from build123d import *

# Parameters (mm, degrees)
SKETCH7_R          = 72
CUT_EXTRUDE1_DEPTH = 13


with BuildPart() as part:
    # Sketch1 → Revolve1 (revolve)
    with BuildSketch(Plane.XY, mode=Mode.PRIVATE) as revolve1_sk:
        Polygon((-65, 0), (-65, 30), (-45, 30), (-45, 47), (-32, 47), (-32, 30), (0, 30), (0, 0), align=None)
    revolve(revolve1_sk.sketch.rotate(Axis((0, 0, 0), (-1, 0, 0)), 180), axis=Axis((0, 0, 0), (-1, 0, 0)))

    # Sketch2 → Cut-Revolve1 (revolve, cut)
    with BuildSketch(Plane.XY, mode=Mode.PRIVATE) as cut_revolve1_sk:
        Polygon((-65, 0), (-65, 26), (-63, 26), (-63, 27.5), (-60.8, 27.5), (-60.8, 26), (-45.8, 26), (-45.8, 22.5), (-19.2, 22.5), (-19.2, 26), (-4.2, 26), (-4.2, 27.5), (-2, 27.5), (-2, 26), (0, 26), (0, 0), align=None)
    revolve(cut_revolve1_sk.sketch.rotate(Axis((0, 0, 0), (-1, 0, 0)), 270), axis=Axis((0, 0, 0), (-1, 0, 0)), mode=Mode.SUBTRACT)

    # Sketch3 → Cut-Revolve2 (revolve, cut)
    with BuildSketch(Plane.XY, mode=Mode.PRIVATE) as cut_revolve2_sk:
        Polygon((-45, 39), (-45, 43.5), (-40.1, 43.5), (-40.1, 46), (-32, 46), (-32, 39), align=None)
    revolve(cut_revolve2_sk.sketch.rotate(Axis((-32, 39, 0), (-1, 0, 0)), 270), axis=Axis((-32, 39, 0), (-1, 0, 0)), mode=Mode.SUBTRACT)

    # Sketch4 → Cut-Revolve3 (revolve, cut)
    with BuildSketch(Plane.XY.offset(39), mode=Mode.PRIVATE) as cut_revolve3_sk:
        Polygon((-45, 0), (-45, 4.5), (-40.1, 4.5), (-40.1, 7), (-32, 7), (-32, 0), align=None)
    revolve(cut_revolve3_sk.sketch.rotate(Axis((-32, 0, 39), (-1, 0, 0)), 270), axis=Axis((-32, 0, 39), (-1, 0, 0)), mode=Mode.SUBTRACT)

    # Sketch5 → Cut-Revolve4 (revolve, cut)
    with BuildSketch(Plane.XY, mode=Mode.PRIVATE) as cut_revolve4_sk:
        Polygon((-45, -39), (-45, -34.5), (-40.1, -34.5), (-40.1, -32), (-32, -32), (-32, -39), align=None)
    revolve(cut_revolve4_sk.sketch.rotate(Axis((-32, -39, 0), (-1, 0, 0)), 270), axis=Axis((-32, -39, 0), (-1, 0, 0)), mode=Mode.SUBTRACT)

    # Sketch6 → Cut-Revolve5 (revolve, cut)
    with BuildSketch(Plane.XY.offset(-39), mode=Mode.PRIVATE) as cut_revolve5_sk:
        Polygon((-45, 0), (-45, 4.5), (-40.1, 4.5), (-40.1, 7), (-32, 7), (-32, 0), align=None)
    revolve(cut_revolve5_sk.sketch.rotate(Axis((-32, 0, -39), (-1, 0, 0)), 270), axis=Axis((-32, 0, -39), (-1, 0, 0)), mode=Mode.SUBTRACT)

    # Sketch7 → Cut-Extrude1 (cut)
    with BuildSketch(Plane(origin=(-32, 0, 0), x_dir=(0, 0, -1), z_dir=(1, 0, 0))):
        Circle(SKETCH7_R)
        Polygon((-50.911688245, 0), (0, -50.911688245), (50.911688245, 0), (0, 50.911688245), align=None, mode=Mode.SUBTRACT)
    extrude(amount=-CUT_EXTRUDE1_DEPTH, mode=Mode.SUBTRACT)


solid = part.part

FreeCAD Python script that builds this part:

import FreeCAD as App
import Part
import Sketcher

V = App.Vector
Q = App.Units.Quantity


def add_polygon(sketch, points):
    """Adds a closed chain of lines whose ends are joined by coincident constraints."""
    first, n = sketch.GeometryCount, len(points)
    for a, b in zip(points, points[1:] + points[:1]):
        sketch.addGeometry(Part.LineSegment(App.Vector(*a, 0), App.Vector(*b, 0)), False)
    for i in range(n):
        sketch.addConstraint(Sketcher.Constraint("Coincident", first + i, 2, first + (i + 1) % n, 1))

doc = App.newDocument("Part")
body = doc.addObject("PartDesign::Body", "Body")

# Sketch on XY plane
sketch1 = body.newObject("Sketcher::SketchObject", "Sketch")
sketch1.AttachmentSupport = (doc.getObject("XY_Plane"), [""])
sketch1.MapMode = "FlatFace"
add_polygon(sketch1, [(-65, 30), (-65, 0), (0, 0), (0, 30), (-32, 30), (-32, 47), (-45, 47), (-45, 30)])  # lines 0-7
sketch1.addConstraint(Sketcher.Constraint("Vertical", 0))
sketch1.addConstraint(Sketcher.Constraint("Horizontal", 1))
sketch1.addConstraint(Sketcher.Constraint("Vertical", 2))
sketch1.addConstraint(Sketcher.Constraint("Horizontal", 3))
sketch1.addConstraint(Sketcher.Constraint("Vertical", 4))
sketch1.addConstraint(Sketcher.Constraint("Horizontal", 5))
sketch1.addConstraint(Sketcher.Constraint("Vertical", 6))
sketch1.addConstraint(Sketcher.Constraint("Horizontal", 7))
sketch1.addConstraint(Sketcher.Constraint("Coincident", 1, 2, -1, 1))
sketch1.addConstraint(Sketcher.Constraint("Horizontal", 3, 2, 6, 2))
sketch1.addConstraint(Sketcher.Constraint("DistanceX", 1, 1, 1, 2, Q("65 mm")))
sketch1.addConstraint(Sketcher.Constraint("DistanceX", 3, 2, 3, 1, Q("32 mm")))
sketch1.addConstraint(Sketcher.Constraint("DistanceX", 5, 2, 5, 1, Q("13 mm")))
sketch1.addConstraint(Sketcher.Constraint("DistanceY", 0, 2, 0, 1, Q("30 mm")))
sketch1.addConstraint(Sketcher.Constraint("DistanceY", 4, 1, 4, 2, Q("17 mm")))
revolution = body.newObject("PartDesign::Revolution", "Revolution")
revolution.Profile = sketch1
revolution.ReferenceAxis = (sketch1, ["H_Axis"])
revolution.Angle = 360

# Sketch on XY plane
sketch2 = body.newObject("Sketcher::SketchObject", "Sketch001")
sketch2.AttachmentSupport = (doc.getObject("XY_Plane"), [""])
sketch2.MapMode = "FlatFace"
add_polygon(sketch2, [(-65, 26), (-65, 0), (0, 0), (0, 26), (-2, 26), (-2, 27.5), (-4.2, 27.5), (-4.2, 26), (-19.2, 26), (-19.2, 22.5), (-45.8, 22.5), (-45.8, 26), (-60.8, 26), (-60.8, 27.5), (-63, 27.5), (-63, 26)])  # lines 0-15
sketch2.addConstraint(Sketcher.Constraint("Vertical", 0))
sketch2.addConstraint(Sketcher.Constraint("Horizontal", 1))
sketch2.addConstraint(Sketcher.Constraint("Vertical", 2))
sketch2.addConstraint(Sketcher.Constraint("Horizontal", 3))
sketch2.addConstraint(Sketcher.Constraint("Vertical", 4))
sketch2.addConstraint(Sketcher.Constraint("Horizontal", 5))
sketch2.addConstraint(Sketcher.Constraint("Vertical", 6))
sketch2.addConstraint(Sketcher.Constraint("Horizontal", 7))
sketch2.addConstraint(Sketcher.Constraint("Vertical", 8))
sketch2.addConstraint(Sketcher.Constraint("Horizontal", 9))
sketch2.addConstraint(Sketcher.Constraint("Vertical", 10))
sketch2.addConstraint(Sketcher.Constraint("Horizontal", 11))
sketch2.addConstraint(Sketcher.Constraint("Vertical", 12))
sketch2.addConstraint(Sketcher.Constraint("Horizontal", 13))
sketch2.addConstraint(Sketcher.Constraint("Vertical", 14))
sketch2.addConstraint(Sketcher.Constraint("Horizontal", 15))
sketch2.addConstraint(Sketcher.Constraint("Coincident", 1, 2, -1, 1))
sketch2.addConstraint(Sketcher.Constraint("Horizontal", 3, 2, 6, 2))
sketch2.addConstraint(Sketcher.Constraint("Horizontal", 7, 2, 10, 2))
sketch2.addConstraint(Sketcher.Constraint("Horizontal", 5, 2, 12, 2))
sketch2.addConstraint(Sketcher.Constraint("Horizontal", 11, 2, 14, 2))
sketch2.addConstraint(Sketcher.Constraint("Equal", 7, 11))
sketch2.addConstraint(Sketcher.Constraint("Equal", 5, 13))
sketch2.addConstraint(Sketcher.Constraint("Equal", 3, 15))
sketch2.addConstraint(Sketcher.Constraint("DistanceX", 1, 1, 1, 2, Q("65 mm")))
sketch2.addConstraint(Sketcher.Constraint("DistanceX", 3, 2, 3, 1, Q("2 mm")))
sketch2.addConstraint(Sketcher.Constraint("DistanceX", 7, 2, 7, 1, Q("15 mm")))
sketch2.addConstraint(Sketcher.Constraint("DistanceY", 0, 2, 0, 1, Q("26 mm")))
sketch2.addConstraint(Sketcher.Constraint("DistanceX", 5, 2, 5, 1, Q("2.2 mm")))
sketch2.addConstraint(Sketcher.Constraint("DistanceY", 4, 1, 4, 2, Q("1.5 mm")))
sketch2.addConstraint(Sketcher.Constraint("DistanceY", 8, 2, 8, 1, Q("3.5 mm")))
groove = body.newObject("PartDesign::Groove", "Groove")
groove.Profile = sketch2
groove.ReferenceAxis = (sketch2, ["H_Axis"])
groove.Angle = 360

# Sketch on XY plane
sketch3 = body.newObject("Sketcher::SketchObject", "Sketch002")
sketch3.AttachmentSupport = (doc.getObject("XY_Plane"), [""])
sketch3.MapMode = "FlatFace"
add_polygon(sketch3, [(-45, 43.5), (-45, 39), (-32, 39), (-32, 46), (-40.1, 46), (-40.1, 43.5)])  # lines 0-5
sketch3.addGeometry(Part.LineSegment(V(-32, 39, 0), V(-45, 39, 0)), True)  # axis
sketch3.addConstraint(Sketcher.Constraint("Vertical", 0))
sketch3.addConstraint(Sketcher.Constraint("Horizontal", 1))
sketch3.addConstraint(Sketcher.Constraint("Vertical", 2))
sketch3.addConstraint(Sketcher.Constraint("Horizontal", 3))
sketch3.addConstraint(Sketcher.Constraint("Vertical", 4))
sketch3.addConstraint(Sketcher.Constraint("Horizontal", 5))
sketch3.addConstraint(Sketcher.Constraint("Horizontal", 6))
sketch3.addConstraint(Sketcher.Constraint("Coincident", 6, 1, 1, 2))
sketch3.addConstraint(Sketcher.Constraint("Vertical", 5, 2, 6, 2))
sketch3.addConstraint(Sketcher.Constraint("DistanceX", 1, 1, 1, 2, Q("13 mm")))
sketch3.addConstraint(Sketcher.Constraint("DistanceY", 2, 1, 2, 2, Q("7 mm")))
sketch3.addConstraint(Sketcher.Constraint("DistanceX", 3, 2, 3, 1, Q("8.1 mm")))
sketch3.addConstraint(Sketcher.Constraint("DistanceY", 0, 2, 0, 1, Q("4.5 mm")))
sketch3.addConstraint(Sketcher.Constraint("DistanceX", 0, 2, -1, 1, Q("45 mm")))
sketch3.addConstraint(Sketcher.Constraint("DistanceY", -1, 1, 0, 2, Q("39 mm")))
groove2 = body.newObject("PartDesign::Groove", "Groove001")
groove2.Profile = sketch3
groove2.ReferenceAxis = (sketch3, ["Axis0"])
groove2.Angle = 360

# Sketch on XY plane
sketch4 = body.newObject("Sketcher::SketchObject", "Sketch003")
sketch4.AttachmentSupport = (doc.getObject("XY_Plane"), [""])
sketch4.MapMode = "FlatFace"
sketch4.AttachmentOffset = App.Placement(V(0, 0, 39), App.Rotation())
add_polygon(sketch4, [(-45, 4.5), (-45, 0), (-32, 0), (-32, 7), (-40.1, 7), (-40.1, 4.5)])  # lines 0-5
sketch4.addConstraint(Sketcher.Constraint("Vertical", 0))
sketch4.addConstraint(Sketcher.Constraint("Horizontal", 1))
sketch4.addConstraint(Sketcher.Constraint("Vertical", 2))
sketch4.addConstraint(Sketcher.Constraint("Horizontal", 3))
sketch4.addConstraint(Sketcher.Constraint("Vertical", 4))
sketch4.addConstraint(Sketcher.Constraint("Horizontal", 5))
sketch4.addConstraint(Sketcher.Constraint("PointOnObject", 0, 2, -1))
sketch4.addConstraint(Sketcher.Constraint("DistanceX", 1, 1, 1, 2, Q("13 mm")))
sketch4.addConstraint(Sketcher.Constraint("DistanceY", 2, 1, 2, 2, Q("7 mm")))
sketch4.addConstraint(Sketcher.Constraint("DistanceX", 3, 2, 3, 1, Q("8.1 mm")))
sketch4.addConstraint(Sketcher.Constraint("DistanceY", 0, 2, 0, 1, Q("4.5 mm")))
sketch4.addConstraint(Sketcher.Constraint("DistanceX", 0, 2, -1, 1, Q("45 mm")))
groove3 = body.newObject("PartDesign::Groove", "Groove002")
groove3.Profile = sketch4
groove3.ReferenceAxis = (sketch4, ["H_Axis"])
groove3.Angle = 360

# Sketch on XY plane
sketch5 = body.newObject("Sketcher::SketchObject", "Sketch004")
sketch5.AttachmentSupport = (doc.getObject("XY_Plane"), [""])
sketch5.MapMode = "FlatFace"
add_polygon(sketch5, [(-45, -34.5), (-45, -39), (-32, -39), (-32, -32), (-40.1, -32), (-40.1, -34.5)])  # lines 0-5
sketch5.addGeometry(Part.LineSegment(V(-32, -39, 0), V(-45, -39, 0)), True)  # axis
sketch5.addConstraint(Sketcher.Constraint("Vertical", 0))
sketch5.addConstraint(Sketcher.Constraint("Horizontal", 1))
sketch5.addConstraint(Sketcher.Constraint("Vertical", 2))
sketch5.addConstraint(Sketcher.Constraint("Horizontal", 3))
sketch5.addConstraint(Sketcher.Constraint("Vertical", 4))
sketch5.addConstraint(Sketcher.Constraint("Horizontal", 5))
sketch5.addConstraint(Sketcher.Constraint("Horizontal", 6))
sketch5.addConstraint(Sketcher.Constraint("Coincident", 6, 1, 1, 2))
sketch5.addConstraint(Sketcher.Constraint("Vertical", 5, 2, 6, 2))
sketch5.addConstraint(Sketcher.Constraint("DistanceX", 1, 1, 1, 2, Q("13 mm")))
sketch5.addConstraint(Sketcher.Constraint("DistanceY", 2, 1, 2, 2, Q("7 mm")))
sketch5.addConstraint(Sketcher.Constraint("DistanceX", 3, 2, 3, 1, Q("8.1 mm")))
sketch5.addConstraint(Sketcher.Constraint("DistanceY", 0, 2, 0, 1, Q("4.5 mm")))
sketch5.addConstraint(Sketcher.Constraint("DistanceX", 0, 2, -1, 1, Q("45 mm")))
sketch5.addConstraint(Sketcher.Constraint("DistanceY", 0, 2, -1, 1, Q("39 mm")))
groove4 = body.newObject("PartDesign::Groove", "Groove003")
groove4.Profile = sketch5
groove4.ReferenceAxis = (sketch5, ["Axis0"])
groove4.Angle = 360

# Sketch on XY plane
sketch6 = body.newObject("Sketcher::SketchObject", "Sketch005")
sketch6.AttachmentSupport = (doc.getObject("XY_Plane"), [""])
sketch6.MapMode = "FlatFace"
sketch6.AttachmentOffset = App.Placement(V(0, 0, -39), App.Rotation())
add_polygon(sketch6, [(-45, 4.5), (-45, 0), (-32, 0), (-32, 7), (-40.1, 7), (-40.1, 4.5)])  # lines 0-5
sketch6.addConstraint(Sketcher.Constraint("Vertical", 0))
sketch6.addConstraint(Sketcher.Constraint("Horizontal", 1))
sketch6.addConstraint(Sketcher.Constraint("Vertical", 2))
sketch6.addConstraint(Sketcher.Constraint("Horizontal", 3))
sketch6.addConstraint(Sketcher.Constraint("Vertical", 4))
sketch6.addConstraint(Sketcher.Constraint("Horizontal", 5))
sketch6.addConstraint(Sketcher.Constraint("PointOnObject", 0, 2, -1))
sketch6.addConstraint(Sketcher.Constraint("DistanceX", 1, 1, 1, 2, Q("13 mm")))
sketch6.addConstraint(Sketcher.Constraint("DistanceY", 2, 1, 2, 2, Q("7 mm")))
sketch6.addConstraint(Sketcher.Constraint("DistanceX", 3, 2, 3, 1, Q("8.1 mm")))
sketch6.addConstraint(Sketcher.Constraint("DistanceY", 0, 2, 0, 1, Q("4.5 mm")))
sketch6.addConstraint(Sketcher.Constraint("DistanceX", 0, 2, -1, 1, Q("45 mm")))
groove5 = body.newObject("PartDesign::Groove", "Groove004")
groove5.Profile = sketch6
groove5.ReferenceAxis = (sketch6, ["H_Axis"])
groove5.Angle = 360

# Sketch on YZ plane
sketch7 = body.newObject("Sketcher::SketchObject", "Sketch006")
sketch7.AttachmentSupport = (doc.getObject("YZ_Plane"), [""])
sketch7.MapMode = "FlatFace"
sketch7.AttachmentOffset = App.Placement(V(0, 0, -32), App.Rotation())
sketch7.addGeometry(Part.Circle(V(0, 0, 0), V(0, 0, 1), 72), False)  # 0
add_polygon(sketch7, [(-51, 0), (0, 51), (51, 0), (0, -51)])  # lines 1-4
sketch7.addConstraint(Sketcher.Constraint("Coincident", 0, 3, -1, 1))
sketch7.addConstraint(Sketcher.Constraint("Symmetric", 1, 2, 3, 2, -1, 1))
sketch7.addConstraint(Sketcher.Constraint("Symmetric", 2, 2, 4, 2, -1, 1))
sketch7.addConstraint(Sketcher.Constraint("PointOnObject", 1, 2, -2))
sketch7.addConstraint(Sketcher.Constraint("PointOnObject", 2, 2, -1))
sketch7.addConstraint(Sketcher.Constraint("Perpendicular", 1, 2))
sketch7.addConstraint(Sketcher.Constraint("Diameter", 0, Q("144 mm")))
sketch7.addConstraint(Sketcher.Constraint("Distance", 1, Q("72 mm")))
pocket1 = body.newObject("PartDesign::Pocket", "Pocket")
pocket1.Profile = sketch7
pocket1.Length = 13

doc.recompute()
